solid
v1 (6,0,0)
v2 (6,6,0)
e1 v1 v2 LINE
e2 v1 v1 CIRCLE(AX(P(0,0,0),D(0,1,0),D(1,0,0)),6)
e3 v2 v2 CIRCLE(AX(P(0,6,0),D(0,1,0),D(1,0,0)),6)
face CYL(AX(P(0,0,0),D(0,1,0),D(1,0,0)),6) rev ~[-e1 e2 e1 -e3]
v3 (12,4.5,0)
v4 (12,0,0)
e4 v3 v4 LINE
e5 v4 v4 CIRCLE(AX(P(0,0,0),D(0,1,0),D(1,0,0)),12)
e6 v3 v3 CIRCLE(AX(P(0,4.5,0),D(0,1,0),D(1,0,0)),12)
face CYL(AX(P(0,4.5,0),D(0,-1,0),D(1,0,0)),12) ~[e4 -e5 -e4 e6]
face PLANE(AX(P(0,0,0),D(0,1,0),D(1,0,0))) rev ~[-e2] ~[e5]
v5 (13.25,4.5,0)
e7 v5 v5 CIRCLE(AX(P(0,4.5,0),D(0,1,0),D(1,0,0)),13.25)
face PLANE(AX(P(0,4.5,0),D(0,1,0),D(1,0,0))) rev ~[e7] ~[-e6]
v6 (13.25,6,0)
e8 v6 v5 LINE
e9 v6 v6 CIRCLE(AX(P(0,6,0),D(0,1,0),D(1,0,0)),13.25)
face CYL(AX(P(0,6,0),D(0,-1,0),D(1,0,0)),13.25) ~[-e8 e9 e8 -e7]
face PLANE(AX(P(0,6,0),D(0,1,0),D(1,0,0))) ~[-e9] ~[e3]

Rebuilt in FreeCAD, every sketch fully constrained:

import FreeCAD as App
import Part
import Sketcher

V = App.Vector
Q = App.Units.Quantity

doc = App.newDocument("Part")
params = doc.addObject("Spreadsheet::Sheet", "Params")
for row, (alias, value) in enumerate([
    ("sketch1_width", "6 mm"),
    ("sketch1_height", "1.5 mm"),
    ("revolution_angle", "360 deg"),
], start=1):
    params.set(f"A{row}", alias)
    params.set(f"B{row}", "=" + value)
    params.setAlias(f"B{row}", alias)

body = doc.addObject("PartDesign::Body", "Body")

# Sketch on XY plane
sketch1 = doc.addObject("Sketcher::SketchObject", "Sketch")
body.addObject(sketch1)
sketch1.AttachmentSupport = (doc.XY_Plane, [""])
sketch1.MapMode = "FlatFace"
sketch1.addGeometry([
    Part.LineSegment(V(6, 6, 0), V(6, 0, 0)),  # 0
    Part.LineSegment(V(6, 0, 0), V(12, 0, 0)),  # 1
    Part.LineSegment(V(12, 0, 0), V(12, 4.5, 0)),  # 2
    Part.LineSegment(V(12, 4.5, 0), V(13.2, 4.5, 0)),  # 3
    Part.LineSegment(V(13.2, 4.5, 0), V(13.2, 6, 0)),  # 4
    Part.LineSegment(V(13.2, 6, 0), V(6, 6, 0)),  # 5
], False)
sketch1.addConstraint([
    Sketcher.Constraint("Coincident", 0, 2, 1, 1),
    Sketcher.Constraint("Coincident", 1, 2, 2, 1),
    Sketcher.Constraint("Coincident", 2, 2, 3, 1),
    Sketcher.Constraint("Coincident", 3, 2, 4, 1),
    Sketcher.Constraint("Coincident", 4, 2, 5, 1),
    Sketcher.Constraint("Coincident", 5, 2, 0, 1),
    Sketcher.Constraint("Vertical", 0),
    Sketcher.Constraint("Horizontal", 1),
    Sketcher.Constraint("Vertical", 2),
    Sketcher.Constraint("Horizontal", 3),
    Sketcher.Constraint("Vertical", 4),
    Sketcher.Constraint("Horizontal", 5),
    Sketcher.Constraint("PointOnObject", 0, 2, -1),
    Sketcher.Constraint("Equal", 1, 0),
    Sketcher.Constraint("DistanceX", 1, 1, 1, 2, Q("6 mm")),
    Sketcher.Constraint("DistanceY", 4, 1, 4, 2, Q("1.5 mm")),
    Sketcher.Constraint("DistanceX", -1, 1, 0, 2, Q("6 mm")),
    Sketcher.Constraint("DistanceX", -1, 1, 3, 2, Q("13.25 mm")),
])
sketch1.setExpression("Constraints[14]", "Params.sketch1_width")
sketch1.setExpression("Constraints[15]", "Params.sketch1_height")
revolution = doc.addObject("PartDesign::Revolution", "Revolution")
body.addObject(revolution)
revolution.Profile = sketch1
revolution.ReferenceAxis = (sketch1, ["V_Axis"])
revolution.setExpression("Angle", "Params.revolution_angle")

doc.recompute()
